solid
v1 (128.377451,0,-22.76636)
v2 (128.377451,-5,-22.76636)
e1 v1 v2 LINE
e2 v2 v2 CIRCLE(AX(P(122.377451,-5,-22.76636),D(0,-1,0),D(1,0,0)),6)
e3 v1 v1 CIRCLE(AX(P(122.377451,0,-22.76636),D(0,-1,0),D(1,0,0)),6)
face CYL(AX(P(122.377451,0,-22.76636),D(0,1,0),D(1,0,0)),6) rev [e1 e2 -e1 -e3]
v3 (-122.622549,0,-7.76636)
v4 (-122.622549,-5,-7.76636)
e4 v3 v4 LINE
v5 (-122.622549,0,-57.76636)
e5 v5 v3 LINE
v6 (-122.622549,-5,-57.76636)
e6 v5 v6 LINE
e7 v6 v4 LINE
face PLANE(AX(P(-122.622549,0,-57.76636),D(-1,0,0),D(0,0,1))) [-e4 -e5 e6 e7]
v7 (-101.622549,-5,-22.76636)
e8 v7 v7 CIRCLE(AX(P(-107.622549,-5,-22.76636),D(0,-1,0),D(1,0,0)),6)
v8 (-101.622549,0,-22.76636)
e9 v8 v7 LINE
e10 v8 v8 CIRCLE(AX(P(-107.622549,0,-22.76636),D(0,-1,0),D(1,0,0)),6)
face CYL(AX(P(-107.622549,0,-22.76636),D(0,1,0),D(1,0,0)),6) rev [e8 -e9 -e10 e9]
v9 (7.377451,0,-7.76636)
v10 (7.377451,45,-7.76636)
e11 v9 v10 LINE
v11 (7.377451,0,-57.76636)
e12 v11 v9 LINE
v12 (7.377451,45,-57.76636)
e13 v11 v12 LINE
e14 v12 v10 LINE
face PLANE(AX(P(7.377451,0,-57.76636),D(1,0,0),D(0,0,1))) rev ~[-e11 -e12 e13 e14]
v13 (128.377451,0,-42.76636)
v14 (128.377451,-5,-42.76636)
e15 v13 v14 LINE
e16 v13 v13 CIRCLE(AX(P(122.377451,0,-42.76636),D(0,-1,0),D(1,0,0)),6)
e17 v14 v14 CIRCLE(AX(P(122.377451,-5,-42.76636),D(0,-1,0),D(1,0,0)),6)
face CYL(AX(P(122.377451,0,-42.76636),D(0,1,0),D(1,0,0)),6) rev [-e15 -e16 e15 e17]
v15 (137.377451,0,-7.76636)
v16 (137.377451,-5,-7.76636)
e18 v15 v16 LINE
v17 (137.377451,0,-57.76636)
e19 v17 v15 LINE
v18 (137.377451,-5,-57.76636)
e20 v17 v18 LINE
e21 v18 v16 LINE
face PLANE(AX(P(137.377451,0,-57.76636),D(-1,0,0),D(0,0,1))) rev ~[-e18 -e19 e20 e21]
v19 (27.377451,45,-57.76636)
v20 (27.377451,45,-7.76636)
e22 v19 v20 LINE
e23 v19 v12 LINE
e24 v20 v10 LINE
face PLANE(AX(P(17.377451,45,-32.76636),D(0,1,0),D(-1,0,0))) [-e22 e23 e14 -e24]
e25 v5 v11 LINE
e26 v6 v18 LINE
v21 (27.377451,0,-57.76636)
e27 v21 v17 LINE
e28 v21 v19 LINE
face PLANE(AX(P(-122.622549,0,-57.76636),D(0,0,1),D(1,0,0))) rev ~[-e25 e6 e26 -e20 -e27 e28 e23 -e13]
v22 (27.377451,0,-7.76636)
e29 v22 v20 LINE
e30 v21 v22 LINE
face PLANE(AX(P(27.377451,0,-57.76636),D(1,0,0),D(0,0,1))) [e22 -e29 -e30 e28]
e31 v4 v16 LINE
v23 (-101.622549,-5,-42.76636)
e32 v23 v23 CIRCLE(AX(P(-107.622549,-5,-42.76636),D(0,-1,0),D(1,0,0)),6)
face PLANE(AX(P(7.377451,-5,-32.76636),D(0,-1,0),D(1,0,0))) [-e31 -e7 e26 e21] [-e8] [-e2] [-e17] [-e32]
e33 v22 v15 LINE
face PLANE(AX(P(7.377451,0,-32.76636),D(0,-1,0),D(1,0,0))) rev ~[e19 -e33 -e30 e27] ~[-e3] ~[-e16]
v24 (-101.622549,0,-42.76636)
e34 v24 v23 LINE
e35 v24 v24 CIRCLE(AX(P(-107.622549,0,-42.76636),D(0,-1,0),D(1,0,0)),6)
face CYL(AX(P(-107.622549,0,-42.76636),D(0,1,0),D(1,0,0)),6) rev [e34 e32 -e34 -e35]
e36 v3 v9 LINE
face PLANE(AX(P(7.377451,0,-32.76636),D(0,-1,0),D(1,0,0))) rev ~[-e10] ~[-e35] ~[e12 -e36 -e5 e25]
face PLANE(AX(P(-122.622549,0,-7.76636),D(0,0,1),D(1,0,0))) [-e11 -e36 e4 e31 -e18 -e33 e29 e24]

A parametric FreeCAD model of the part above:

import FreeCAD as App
import Part
import Sketcher
from FreeCAD import Vector
Q = App.Units.Quantity


def add_polygon(sketch, points):
    """Adds a closed chain of lines whose ends are joined by coincident constraints."""
    first, n = sketch.GeometryCount, len(points)
    for a, b in zip(points, points[1:] + points[:1]):
        sketch.addGeometry(Part.LineSegment(App.Vector(*a, 0), App.Vector(*b, 0)), False)
    for i in range(n):
        sketch.addConstraint(Sketcher.Constraint("Coincident", first + i, 2, first + (i + 1) % n, 1))

doc = App.newDocument("Part")
body = doc.addObject("PartDesign::Body", "Body")

sketch1 = body.newObject("Sketcher::SketchObject", "Sketch")
sketch1.AttachmentSupport = (doc.getObject("XZ_Plane"), [""])
sketch1.MapMode = "FlatFace"
add_polygon(sketch1, [(-123, -8), (-123, -58), (137, -58), (137, -8)])
sketch1.addConstraint(Sketcher.Constraint("Vertical", 0))
sketch1.addConstraint(Sketcher.Constraint("Horizontal", 1))
sketch1.addConstraint(Sketcher.Constraint("Vertical", 2))
sketch1.addConstraint(Sketcher.Constraint("Horizontal", 3))
sketch1.addConstraint(Sketcher.Constraint("DistanceX", 1, 1, 1, 2, Q("260 mm")))
sketch1.addConstraint(Sketcher.Constraint("DistanceY", 0, 2, 0, 1, Q("50 mm")))
sketch1.addConstraint(Sketcher.Constraint("DistanceX", 0, 2, -1, 1, Q("122.622549 mm")))
sketch1.addConstraint(Sketcher.Constraint("DistanceY", 0, 2, -1, 1, Q("57.76636 mm")))
pad1 = body.newObject("PartDesign::Pad", "Pad")
pad1.Profile = sketch1
pad1.Length = 5

sketch2 = body.newObject("Sketcher::SketchObject", "Sketch001")
sketch2.AttachmentSupport = (doc.getObject("XZ_Plane"), [""])
sketch2.MapMode = "FlatFace"
add_polygon(sketch2, [(27, -8), (27, -58), (7, -58), (7, -8)])
sketch2.addConstraint(Sketcher.Constraint("Vertical", 0))
sketch2.addConstraint(Sketcher.Constraint("Horizontal", 1))
sketch2.addConstraint(Sketcher.Constraint("Vertical", 2))
sketch2.addConstraint(Sketcher.Constraint("Horizontal", 3))
sketch2.addConstraint(Sketcher.Constraint("DistanceX", 1, 2, 1, 1, Q("20 mm")))
sketch2.addConstraint(Sketcher.Constraint("DistanceY", 0, 2, 0, 1, Q("50 mm")))
sketch2.addConstraint(Sketcher.Constraint("DistanceX", -1, 1, 0, 2, Q("27.377451 mm")))
sketch2.addConstraint(Sketcher.Constraint("DistanceY", 0, 2, -1, 1, Q("57.76636 mm")))
pad2 = body.newObject("PartDesign::Pad", "Pad001")
pad2.Profile = sketch2
pad2.Length = 45
pad2.Reversed = True

sketch3 = body.newObject("Sketcher::SketchObject", "Sketch002")
sketch3.AttachmentSupport = (doc.getObject("XZ_Plane"), [""])
sketch3.MapMode = "FlatFace"
sketch3.addGeometry(Part.Circle(Vector(122, -43, 0), Vector(0, 0, 1), 6), False)
sketch3.addGeometry(Part.Circle(Vector(122, -23, 0), Vector(0, 0, 1), 6), False)
sketch3.addGeometry(Part.Circle(Vector(-108, -43, 0), Vector(0, 0, 1), 6), False)
sketch3.addGeometry(Part.Circle(Vector(-108, -23, 0), Vector(0, 0, 1), 6), False)
sketch3.addConstraint(Sketcher.Constraint("Equal", 0, 1))
sketch3.addConstraint(Sketcher.Constraint("Equal", 1, 2))
sketch3.addConstraint(Sketcher.Constraint("Equal", 2, 3))
sketch3.addConstraint(Sketcher.Constraint("Horizontal", 0, 3, 2, 3))
sketch3.addConstraint(Sketcher.Constraint("Horizontal", 1, 3, 3, 3))
sketch3.addConstraint(Sketcher.Constraint("Vertical", 0, 3, 1, 3))
sketch3.addConstraint(Sketcher.Constraint("Vertical", 2, 3, 3, 3))
sketch3.addConstraint(Sketcher.Constraint("Diameter", 0, Q("12 mm")))
sketch3.addConstraint(Sketcher.Constraint("DistanceY", 0, 3, 1, 3, Q("20 mm")))
sketch3.addConstraint(Sketcher.Constraint("DistanceX", 2, 3, 0, 3, Q("230 mm")))
sketch3.addConstraint(Sketcher.Constraint("DistanceX", -1, 1, 0, 3, Q("122.377451 mm")))
sketch3.addConstraint(Sketcher.Constraint("DistanceY", 0, 3, -1, 1, Q("42.76636 mm")))
pocket1 = body.newObject("PartDesign::Pocket", "Pocket")
pocket1.Profile = sketch3
pocket1.Type = "ThroughAll"
pocket1.Reversed = True

doc.recompute()
